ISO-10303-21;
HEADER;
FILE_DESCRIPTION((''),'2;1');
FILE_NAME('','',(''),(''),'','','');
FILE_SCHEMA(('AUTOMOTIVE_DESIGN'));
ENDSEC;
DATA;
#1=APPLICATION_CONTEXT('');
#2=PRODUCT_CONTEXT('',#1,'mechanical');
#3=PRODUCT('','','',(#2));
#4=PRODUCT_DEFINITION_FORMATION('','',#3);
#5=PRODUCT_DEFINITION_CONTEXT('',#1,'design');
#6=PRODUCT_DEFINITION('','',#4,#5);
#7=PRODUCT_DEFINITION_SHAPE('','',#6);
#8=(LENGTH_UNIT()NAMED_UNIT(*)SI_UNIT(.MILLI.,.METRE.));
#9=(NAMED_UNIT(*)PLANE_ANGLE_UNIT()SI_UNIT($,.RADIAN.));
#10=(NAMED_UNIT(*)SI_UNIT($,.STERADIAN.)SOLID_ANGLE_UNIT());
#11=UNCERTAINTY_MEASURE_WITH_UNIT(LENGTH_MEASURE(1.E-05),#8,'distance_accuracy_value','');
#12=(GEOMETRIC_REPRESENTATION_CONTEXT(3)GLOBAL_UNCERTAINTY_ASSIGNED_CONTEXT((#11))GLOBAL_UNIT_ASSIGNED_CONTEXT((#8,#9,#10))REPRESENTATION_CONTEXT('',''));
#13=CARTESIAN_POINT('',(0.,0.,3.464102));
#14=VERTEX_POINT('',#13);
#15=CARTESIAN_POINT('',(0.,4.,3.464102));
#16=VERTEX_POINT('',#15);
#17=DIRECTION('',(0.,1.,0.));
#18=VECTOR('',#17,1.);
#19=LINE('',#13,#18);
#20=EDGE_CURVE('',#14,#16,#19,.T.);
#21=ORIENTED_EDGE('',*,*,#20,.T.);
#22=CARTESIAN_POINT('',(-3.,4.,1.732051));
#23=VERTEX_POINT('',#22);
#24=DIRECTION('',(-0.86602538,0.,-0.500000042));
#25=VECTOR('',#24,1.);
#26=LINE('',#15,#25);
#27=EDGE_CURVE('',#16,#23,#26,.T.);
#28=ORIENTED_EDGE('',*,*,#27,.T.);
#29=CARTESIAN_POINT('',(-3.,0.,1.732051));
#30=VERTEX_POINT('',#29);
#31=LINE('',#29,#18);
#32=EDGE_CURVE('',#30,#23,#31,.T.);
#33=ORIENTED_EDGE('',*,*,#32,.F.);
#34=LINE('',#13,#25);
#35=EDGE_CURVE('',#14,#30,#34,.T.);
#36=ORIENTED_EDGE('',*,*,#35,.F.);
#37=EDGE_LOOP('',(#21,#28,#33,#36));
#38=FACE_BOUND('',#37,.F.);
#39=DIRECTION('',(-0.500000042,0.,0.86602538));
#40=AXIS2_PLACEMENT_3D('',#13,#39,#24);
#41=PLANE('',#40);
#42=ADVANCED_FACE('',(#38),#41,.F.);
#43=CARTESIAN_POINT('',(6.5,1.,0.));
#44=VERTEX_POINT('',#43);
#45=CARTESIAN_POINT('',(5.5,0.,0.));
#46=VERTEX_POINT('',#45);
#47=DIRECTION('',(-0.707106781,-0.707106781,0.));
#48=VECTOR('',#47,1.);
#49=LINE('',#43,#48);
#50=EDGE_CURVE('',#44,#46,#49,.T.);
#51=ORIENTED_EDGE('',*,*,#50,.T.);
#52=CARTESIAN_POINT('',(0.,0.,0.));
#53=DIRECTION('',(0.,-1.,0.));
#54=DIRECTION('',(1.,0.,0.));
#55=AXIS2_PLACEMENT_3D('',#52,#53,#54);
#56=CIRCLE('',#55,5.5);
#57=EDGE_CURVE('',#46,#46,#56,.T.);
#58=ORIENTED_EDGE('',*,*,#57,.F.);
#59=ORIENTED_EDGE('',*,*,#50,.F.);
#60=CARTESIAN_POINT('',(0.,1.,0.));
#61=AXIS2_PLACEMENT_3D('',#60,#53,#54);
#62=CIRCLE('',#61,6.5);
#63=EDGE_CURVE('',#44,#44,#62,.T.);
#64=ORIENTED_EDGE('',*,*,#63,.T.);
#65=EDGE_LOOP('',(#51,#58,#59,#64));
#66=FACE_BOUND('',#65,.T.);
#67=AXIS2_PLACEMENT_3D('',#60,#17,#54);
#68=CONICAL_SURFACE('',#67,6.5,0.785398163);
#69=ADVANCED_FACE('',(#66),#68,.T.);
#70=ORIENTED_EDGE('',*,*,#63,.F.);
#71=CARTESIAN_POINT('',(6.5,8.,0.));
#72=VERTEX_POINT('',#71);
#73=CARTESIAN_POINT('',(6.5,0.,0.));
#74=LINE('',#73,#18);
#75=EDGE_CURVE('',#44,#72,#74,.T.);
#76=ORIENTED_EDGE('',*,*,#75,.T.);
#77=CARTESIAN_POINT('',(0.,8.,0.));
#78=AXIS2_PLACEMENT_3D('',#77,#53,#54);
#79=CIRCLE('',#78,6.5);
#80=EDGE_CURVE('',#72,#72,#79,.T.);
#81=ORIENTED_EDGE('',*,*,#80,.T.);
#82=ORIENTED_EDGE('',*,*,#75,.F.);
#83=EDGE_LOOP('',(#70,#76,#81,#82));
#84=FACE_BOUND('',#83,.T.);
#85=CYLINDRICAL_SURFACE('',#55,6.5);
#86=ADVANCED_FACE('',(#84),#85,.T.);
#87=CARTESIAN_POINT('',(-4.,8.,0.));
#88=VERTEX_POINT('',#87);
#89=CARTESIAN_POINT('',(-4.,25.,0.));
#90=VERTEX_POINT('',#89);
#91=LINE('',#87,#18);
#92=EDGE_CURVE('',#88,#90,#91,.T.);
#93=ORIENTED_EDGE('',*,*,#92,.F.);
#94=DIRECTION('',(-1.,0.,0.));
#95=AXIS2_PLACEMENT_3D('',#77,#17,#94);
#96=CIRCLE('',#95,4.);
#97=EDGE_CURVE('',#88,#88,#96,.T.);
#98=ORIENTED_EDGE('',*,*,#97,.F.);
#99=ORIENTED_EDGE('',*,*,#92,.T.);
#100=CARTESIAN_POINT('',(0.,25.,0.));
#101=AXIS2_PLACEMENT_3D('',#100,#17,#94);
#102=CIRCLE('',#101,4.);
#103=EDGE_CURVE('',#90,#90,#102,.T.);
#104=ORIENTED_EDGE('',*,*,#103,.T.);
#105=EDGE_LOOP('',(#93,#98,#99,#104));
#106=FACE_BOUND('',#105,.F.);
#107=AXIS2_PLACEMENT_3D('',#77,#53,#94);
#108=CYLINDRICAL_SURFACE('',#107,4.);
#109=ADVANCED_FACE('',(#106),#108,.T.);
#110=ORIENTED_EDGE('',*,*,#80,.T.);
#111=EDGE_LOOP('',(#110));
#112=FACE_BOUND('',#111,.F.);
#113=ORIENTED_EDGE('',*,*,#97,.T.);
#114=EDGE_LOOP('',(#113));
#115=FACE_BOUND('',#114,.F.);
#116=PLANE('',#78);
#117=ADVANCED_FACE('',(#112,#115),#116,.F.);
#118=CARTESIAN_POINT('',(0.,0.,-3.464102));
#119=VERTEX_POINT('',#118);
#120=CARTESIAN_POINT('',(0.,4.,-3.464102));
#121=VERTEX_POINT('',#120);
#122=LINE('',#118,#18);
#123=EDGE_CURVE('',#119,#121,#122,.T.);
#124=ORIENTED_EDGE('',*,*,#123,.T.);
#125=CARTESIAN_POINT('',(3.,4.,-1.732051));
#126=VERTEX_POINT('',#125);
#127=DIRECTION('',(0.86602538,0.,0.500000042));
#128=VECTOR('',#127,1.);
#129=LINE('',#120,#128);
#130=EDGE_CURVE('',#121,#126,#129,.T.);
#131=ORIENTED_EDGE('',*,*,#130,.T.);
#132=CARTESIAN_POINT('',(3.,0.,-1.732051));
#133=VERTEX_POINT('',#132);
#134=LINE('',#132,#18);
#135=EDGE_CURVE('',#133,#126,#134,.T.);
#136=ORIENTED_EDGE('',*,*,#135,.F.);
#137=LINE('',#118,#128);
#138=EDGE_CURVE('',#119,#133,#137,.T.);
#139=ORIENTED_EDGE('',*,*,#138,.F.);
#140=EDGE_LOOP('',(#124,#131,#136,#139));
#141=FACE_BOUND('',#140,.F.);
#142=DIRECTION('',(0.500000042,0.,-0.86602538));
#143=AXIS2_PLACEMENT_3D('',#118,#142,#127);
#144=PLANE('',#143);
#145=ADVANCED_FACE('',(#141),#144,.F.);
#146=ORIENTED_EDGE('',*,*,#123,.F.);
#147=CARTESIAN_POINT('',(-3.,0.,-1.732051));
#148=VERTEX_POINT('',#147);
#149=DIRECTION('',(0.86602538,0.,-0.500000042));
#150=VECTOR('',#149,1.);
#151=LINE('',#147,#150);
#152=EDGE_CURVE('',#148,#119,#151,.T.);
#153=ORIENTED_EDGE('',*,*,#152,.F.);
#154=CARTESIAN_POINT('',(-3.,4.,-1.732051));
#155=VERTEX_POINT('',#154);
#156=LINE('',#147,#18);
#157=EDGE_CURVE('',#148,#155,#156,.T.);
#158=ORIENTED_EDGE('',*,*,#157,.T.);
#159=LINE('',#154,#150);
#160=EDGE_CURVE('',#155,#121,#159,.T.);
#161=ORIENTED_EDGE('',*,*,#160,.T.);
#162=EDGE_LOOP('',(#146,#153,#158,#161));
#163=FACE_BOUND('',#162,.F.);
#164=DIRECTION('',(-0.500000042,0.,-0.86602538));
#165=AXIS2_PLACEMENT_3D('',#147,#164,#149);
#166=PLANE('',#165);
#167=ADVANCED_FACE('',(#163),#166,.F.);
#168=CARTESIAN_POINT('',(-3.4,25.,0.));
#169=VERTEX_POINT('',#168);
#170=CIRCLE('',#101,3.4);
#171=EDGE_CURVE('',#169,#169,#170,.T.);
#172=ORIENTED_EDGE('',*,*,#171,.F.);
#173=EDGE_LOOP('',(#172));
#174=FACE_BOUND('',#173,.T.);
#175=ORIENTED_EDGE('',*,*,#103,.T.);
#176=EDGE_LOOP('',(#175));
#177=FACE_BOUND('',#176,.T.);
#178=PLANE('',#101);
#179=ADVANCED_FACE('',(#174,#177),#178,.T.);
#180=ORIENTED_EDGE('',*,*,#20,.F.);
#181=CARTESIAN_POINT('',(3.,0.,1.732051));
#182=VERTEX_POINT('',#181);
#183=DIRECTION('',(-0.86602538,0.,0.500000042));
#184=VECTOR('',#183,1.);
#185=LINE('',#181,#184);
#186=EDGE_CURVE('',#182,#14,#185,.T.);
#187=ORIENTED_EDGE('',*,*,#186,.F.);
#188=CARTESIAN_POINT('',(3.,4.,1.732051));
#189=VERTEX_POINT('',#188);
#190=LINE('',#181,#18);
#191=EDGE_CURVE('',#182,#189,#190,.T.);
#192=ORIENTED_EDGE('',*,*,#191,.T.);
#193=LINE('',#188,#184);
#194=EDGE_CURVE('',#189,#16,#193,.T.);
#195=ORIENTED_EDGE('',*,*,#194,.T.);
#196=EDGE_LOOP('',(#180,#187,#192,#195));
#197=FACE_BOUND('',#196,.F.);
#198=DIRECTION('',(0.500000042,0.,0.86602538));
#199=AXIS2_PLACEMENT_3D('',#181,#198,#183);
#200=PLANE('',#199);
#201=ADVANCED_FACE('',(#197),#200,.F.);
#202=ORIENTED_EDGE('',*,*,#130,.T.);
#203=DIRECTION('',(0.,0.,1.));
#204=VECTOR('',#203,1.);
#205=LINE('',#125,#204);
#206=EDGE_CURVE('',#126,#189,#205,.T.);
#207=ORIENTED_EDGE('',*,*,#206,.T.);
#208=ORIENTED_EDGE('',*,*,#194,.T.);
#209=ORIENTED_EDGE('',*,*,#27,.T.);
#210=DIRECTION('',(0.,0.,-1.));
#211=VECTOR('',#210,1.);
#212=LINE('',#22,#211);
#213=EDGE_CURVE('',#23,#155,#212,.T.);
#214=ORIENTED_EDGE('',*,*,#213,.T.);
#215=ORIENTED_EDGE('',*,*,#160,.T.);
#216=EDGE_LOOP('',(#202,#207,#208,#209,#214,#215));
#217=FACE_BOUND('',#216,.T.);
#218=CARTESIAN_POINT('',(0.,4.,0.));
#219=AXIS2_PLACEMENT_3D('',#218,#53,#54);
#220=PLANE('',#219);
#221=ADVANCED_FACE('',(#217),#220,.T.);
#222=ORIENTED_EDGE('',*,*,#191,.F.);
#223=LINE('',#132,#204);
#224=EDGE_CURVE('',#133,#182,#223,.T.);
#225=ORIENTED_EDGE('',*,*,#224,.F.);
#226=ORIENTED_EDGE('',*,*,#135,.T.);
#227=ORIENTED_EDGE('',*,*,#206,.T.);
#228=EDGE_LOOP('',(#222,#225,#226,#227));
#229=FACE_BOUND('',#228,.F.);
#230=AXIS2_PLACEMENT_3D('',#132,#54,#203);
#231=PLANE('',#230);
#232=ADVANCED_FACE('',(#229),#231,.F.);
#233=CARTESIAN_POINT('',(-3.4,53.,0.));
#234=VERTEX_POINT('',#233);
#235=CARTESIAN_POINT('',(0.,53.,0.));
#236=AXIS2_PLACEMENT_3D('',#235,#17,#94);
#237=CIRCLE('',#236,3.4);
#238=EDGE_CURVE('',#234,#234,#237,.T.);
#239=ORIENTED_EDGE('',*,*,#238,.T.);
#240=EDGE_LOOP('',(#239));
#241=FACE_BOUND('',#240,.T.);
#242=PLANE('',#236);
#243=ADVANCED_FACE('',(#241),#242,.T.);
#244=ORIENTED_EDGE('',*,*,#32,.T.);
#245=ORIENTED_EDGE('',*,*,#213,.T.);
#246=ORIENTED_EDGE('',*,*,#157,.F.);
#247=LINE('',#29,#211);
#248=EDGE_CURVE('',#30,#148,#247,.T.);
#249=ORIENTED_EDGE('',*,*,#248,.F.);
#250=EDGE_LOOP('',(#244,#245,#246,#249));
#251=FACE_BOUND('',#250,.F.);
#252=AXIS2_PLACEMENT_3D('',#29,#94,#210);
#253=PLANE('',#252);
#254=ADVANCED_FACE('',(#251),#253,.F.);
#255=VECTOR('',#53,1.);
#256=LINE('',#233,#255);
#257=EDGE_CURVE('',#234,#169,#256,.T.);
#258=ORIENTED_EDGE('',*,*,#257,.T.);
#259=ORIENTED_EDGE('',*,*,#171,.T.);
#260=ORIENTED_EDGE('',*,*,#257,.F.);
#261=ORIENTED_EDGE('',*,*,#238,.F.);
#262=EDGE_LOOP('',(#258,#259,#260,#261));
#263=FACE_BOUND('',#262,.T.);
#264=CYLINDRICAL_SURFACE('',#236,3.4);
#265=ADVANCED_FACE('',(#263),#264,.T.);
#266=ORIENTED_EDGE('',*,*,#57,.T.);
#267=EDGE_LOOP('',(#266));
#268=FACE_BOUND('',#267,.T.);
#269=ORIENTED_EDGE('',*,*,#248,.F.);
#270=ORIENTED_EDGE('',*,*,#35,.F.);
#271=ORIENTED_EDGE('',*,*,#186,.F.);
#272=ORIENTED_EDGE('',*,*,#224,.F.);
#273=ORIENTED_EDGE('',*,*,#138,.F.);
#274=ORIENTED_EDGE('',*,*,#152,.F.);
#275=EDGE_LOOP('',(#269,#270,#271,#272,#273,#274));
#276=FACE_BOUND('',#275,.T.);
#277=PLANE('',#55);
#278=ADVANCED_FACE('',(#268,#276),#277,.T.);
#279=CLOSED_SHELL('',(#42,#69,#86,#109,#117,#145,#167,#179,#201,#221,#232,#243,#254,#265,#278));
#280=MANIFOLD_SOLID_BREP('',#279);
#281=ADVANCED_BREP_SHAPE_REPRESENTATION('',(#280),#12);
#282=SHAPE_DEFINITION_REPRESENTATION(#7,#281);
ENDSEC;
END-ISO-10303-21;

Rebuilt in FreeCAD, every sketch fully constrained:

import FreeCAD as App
import Part
import Sketcher
from FreeCAD import Vector
Q = App.Units.Quantity


def edges_at(feature, points):
    """Names of the edges that pass closest to the given points."""
    edges = feature.Shape.Edges
    near = lambda p: min(range(len(edges)), key=lambda i: edges[i].distToShape(Part.Vertex(*p))[0])
    return sorted({f"Edge{near(p) + 1}" for p in points})

doc = App.newDocument("Part")
params = doc.addObject("Spreadsheet::Sheet", "Params")
for row, (alias, value) in enumerate([
    ("sketch1_diameter", "13 mm"),
    ("pad1_length", "8 mm"),
    ("pocket1_length", "4 mm"),
    ("sketch3_diameter", "8 mm"),
    ("pad2_length", "45 mm"),
    ("sketch4_diameter", "8 mm"),
    ("sketch4_diameter2", "6.8 mm"),
    ("pocket2_length", "28 mm"),
    ("chamfer_size", "1 mm"),
], start=1):
    params.set(f"A{row}", alias)
    params.set(f"B{row}", "=" + value)
    params.setAlias(f"B{row}", alias)

body = doc.addObject("PartDesign::Body", "Body")

sketch1 = doc.addObject("Sketcher::SketchObject", "Sketch")
body.addObject(sketch1)
sketch1.AttachmentSupport = (doc.XZ_Plane, [""])
sketch1.MapMode = "FlatFace"
sketch1.addGeometry(Part.Circle(Vector(0, 0, 0), Vector(0, 0, 1), 6), False)
sketch1.addConstraint([
    Sketcher.Constraint("Coincident", 0, 3, -1, 1),
    Sketcher.Constraint("Diameter", 0, 13.0),
])
sketch1.setExpression("Constraints[1]", "Params.sketch1_diameter")
pad1 = doc.addObject("PartDesign::Pad", "Pad")
body.addObject(pad1)
pad1.Profile = sketch1
pad1.setExpression("Length", "Params.pad1_length")
pad1.Reversed = True

sketch2 = doc.addObject("Sketcher::SketchObject", "Sketch001")
body.addObject(sketch2)
sketch2.AttachmentSupport = (doc.XZ_Plane, [""])
sketch2.MapMode = "FlatFace"
sketch2.addGeometry([
    Part.LineSegment(Vector(3, 1.7, 0), Vector(0, 3.5, 0)),
    Part.LineSegment(Vector(0, 3.5, 0), Vector(-3, 1.7, 0)),
    Part.LineSegment(Vector(-3, 1.7, 0), Vector(-3, -1.7, 0)),
    Part.LineSegment(Vector(-3, -1.7, 0), Vector(0, -3.5, 0)),
    Part.LineSegment(Vector(0, -3.5, 0), Vector(3, -1.7, 0)),
    Part.LineSegment(Vector(3, -1.7, 0), Vector(3, 1.7, 0)),
], False)
sketch2.addConstraint([
    Sketcher.Constraint("Coincident", 0, 2, 1, 1),
    Sketcher.Constraint("Coincident", 1, 2, 2, 1),
    Sketcher.Constraint("Coincident", 2, 2, 3, 1),
    Sketcher.Constraint("Coincident", 3, 2, 4, 1),
    Sketcher.Constraint("Coincident", 4, 2, 5, 1),
    Sketcher.Constraint("Coincident", 5, 2, 0, 1),
    Sketcher.Constraint("Vertical", 2),
    Sketcher.Constraint("Vertical", 5),
    Sketcher.Constraint("Symmetric", 0, 2, 3, 2, -1, 1),
    Sketcher.Constraint("Symmetric", 1, 2, 4, 2, -1, 1),
    Sketcher.Constraint("PointOnObject", 0, 2, -2),
    Sketcher.Constraint("Parallel", 0, 3),
    Sketcher.Constraint("Horizontal", 2, 2, 4, 2),
    Sketcher.Constraint("Angle", 0, Q("149.999997 deg")),
    Sketcher.Constraint("DistanceX", 1, 2, -1, 1, 3.0),
    Sketcher.Constraint("DistanceY", 2, 2, 2, 1, 3.464102),
])
pocket1 = doc.addObject("PartDesign::Pocket", "Pocket")
body.addObject(pocket1)
pocket1.Profile = sketch2
pocket1.setExpression("Length", "Params.pocket1_length")

sketch3 = doc.addObject("Sketcher::SketchObject", "Sketch002")
body.addObject(sketch3)
sketch3.AttachmentSupport = (doc.XZ_Plane, [""])
sketch3.MapMode = "FlatFace"
sketch3.AttachmentOffset = App.Placement(Vector(0, 0, -8), App.Rotation())
sketch3.addGeometry(Part.Circle(Vector(0, 0, 0), Vector(0, 0, 1), 4), False)
sketch3.addConstraint([
    Sketcher.Constraint("Coincident", 0, 3, -1, 1),
    Sketcher.Constraint("Diameter", 0, 8.0),
])
sketch3.setExpression("Constraints[1]", "Params.sketch3_diameter")
pad2 = doc.addObject("PartDesign::Pad", "Pad001")
body.addObject(pad2)
pad2.Profile = sketch3
pad2.setExpression("Length", "Params.pad2_length")
pad2.Reversed = True

sketch4 = doc.addObject("Sketcher::SketchObject", "Sketch003")
body.addObject(sketch4)
sketch4.AttachmentSupport = (doc.XZ_Plane, [""])
sketch4.MapMode = "FlatFace"
sketch4.AttachmentOffset = App.Placement(Vector(0, 0, -53), App.Rotation())
sketch4.addGeometry([
    Part.Circle(Vector(0, 0, 0), Vector(0, 0, 1), 4),
    Part.Circle(Vector(0, 0, 0), Vector(0, 0, 1), 3.4),
], False)
sketch4.addConstraint([
    Sketcher.Constraint("Coincident", 0, 3, -1, 1),
    Sketcher.Constraint("Coincident", 1, 3, -1, 1),
    Sketcher.Constraint("Diameter", 0, 8.0),
    Sketcher.Constraint("Diameter", 1, 6.8),
])
sketch4.setExpression("Constraints[2]", "Params.sketch4_diameter")
sketch4.setExpression("Constraints[3]", "Params.sketch4_diameter2")
pocket2 = doc.addObject("PartDesign::Pocket", "Pocket001")
body.addObject(pocket2)
pocket2.Profile = sketch4
pocket2.setExpression("Length", "Params.pocket2_length")
pocket2.Reversed = True
doc.recompute()

chamfer = doc.addObject("PartDesign::Chamfer", "Chamfer")
body.addObject(chamfer)
chamfer.Base = (pocket2, edges_at(pocket2, [(-6.5, 0, 0)]))
chamfer.setExpression("Size", "Params.chamfer_size")

doc.recompute()
